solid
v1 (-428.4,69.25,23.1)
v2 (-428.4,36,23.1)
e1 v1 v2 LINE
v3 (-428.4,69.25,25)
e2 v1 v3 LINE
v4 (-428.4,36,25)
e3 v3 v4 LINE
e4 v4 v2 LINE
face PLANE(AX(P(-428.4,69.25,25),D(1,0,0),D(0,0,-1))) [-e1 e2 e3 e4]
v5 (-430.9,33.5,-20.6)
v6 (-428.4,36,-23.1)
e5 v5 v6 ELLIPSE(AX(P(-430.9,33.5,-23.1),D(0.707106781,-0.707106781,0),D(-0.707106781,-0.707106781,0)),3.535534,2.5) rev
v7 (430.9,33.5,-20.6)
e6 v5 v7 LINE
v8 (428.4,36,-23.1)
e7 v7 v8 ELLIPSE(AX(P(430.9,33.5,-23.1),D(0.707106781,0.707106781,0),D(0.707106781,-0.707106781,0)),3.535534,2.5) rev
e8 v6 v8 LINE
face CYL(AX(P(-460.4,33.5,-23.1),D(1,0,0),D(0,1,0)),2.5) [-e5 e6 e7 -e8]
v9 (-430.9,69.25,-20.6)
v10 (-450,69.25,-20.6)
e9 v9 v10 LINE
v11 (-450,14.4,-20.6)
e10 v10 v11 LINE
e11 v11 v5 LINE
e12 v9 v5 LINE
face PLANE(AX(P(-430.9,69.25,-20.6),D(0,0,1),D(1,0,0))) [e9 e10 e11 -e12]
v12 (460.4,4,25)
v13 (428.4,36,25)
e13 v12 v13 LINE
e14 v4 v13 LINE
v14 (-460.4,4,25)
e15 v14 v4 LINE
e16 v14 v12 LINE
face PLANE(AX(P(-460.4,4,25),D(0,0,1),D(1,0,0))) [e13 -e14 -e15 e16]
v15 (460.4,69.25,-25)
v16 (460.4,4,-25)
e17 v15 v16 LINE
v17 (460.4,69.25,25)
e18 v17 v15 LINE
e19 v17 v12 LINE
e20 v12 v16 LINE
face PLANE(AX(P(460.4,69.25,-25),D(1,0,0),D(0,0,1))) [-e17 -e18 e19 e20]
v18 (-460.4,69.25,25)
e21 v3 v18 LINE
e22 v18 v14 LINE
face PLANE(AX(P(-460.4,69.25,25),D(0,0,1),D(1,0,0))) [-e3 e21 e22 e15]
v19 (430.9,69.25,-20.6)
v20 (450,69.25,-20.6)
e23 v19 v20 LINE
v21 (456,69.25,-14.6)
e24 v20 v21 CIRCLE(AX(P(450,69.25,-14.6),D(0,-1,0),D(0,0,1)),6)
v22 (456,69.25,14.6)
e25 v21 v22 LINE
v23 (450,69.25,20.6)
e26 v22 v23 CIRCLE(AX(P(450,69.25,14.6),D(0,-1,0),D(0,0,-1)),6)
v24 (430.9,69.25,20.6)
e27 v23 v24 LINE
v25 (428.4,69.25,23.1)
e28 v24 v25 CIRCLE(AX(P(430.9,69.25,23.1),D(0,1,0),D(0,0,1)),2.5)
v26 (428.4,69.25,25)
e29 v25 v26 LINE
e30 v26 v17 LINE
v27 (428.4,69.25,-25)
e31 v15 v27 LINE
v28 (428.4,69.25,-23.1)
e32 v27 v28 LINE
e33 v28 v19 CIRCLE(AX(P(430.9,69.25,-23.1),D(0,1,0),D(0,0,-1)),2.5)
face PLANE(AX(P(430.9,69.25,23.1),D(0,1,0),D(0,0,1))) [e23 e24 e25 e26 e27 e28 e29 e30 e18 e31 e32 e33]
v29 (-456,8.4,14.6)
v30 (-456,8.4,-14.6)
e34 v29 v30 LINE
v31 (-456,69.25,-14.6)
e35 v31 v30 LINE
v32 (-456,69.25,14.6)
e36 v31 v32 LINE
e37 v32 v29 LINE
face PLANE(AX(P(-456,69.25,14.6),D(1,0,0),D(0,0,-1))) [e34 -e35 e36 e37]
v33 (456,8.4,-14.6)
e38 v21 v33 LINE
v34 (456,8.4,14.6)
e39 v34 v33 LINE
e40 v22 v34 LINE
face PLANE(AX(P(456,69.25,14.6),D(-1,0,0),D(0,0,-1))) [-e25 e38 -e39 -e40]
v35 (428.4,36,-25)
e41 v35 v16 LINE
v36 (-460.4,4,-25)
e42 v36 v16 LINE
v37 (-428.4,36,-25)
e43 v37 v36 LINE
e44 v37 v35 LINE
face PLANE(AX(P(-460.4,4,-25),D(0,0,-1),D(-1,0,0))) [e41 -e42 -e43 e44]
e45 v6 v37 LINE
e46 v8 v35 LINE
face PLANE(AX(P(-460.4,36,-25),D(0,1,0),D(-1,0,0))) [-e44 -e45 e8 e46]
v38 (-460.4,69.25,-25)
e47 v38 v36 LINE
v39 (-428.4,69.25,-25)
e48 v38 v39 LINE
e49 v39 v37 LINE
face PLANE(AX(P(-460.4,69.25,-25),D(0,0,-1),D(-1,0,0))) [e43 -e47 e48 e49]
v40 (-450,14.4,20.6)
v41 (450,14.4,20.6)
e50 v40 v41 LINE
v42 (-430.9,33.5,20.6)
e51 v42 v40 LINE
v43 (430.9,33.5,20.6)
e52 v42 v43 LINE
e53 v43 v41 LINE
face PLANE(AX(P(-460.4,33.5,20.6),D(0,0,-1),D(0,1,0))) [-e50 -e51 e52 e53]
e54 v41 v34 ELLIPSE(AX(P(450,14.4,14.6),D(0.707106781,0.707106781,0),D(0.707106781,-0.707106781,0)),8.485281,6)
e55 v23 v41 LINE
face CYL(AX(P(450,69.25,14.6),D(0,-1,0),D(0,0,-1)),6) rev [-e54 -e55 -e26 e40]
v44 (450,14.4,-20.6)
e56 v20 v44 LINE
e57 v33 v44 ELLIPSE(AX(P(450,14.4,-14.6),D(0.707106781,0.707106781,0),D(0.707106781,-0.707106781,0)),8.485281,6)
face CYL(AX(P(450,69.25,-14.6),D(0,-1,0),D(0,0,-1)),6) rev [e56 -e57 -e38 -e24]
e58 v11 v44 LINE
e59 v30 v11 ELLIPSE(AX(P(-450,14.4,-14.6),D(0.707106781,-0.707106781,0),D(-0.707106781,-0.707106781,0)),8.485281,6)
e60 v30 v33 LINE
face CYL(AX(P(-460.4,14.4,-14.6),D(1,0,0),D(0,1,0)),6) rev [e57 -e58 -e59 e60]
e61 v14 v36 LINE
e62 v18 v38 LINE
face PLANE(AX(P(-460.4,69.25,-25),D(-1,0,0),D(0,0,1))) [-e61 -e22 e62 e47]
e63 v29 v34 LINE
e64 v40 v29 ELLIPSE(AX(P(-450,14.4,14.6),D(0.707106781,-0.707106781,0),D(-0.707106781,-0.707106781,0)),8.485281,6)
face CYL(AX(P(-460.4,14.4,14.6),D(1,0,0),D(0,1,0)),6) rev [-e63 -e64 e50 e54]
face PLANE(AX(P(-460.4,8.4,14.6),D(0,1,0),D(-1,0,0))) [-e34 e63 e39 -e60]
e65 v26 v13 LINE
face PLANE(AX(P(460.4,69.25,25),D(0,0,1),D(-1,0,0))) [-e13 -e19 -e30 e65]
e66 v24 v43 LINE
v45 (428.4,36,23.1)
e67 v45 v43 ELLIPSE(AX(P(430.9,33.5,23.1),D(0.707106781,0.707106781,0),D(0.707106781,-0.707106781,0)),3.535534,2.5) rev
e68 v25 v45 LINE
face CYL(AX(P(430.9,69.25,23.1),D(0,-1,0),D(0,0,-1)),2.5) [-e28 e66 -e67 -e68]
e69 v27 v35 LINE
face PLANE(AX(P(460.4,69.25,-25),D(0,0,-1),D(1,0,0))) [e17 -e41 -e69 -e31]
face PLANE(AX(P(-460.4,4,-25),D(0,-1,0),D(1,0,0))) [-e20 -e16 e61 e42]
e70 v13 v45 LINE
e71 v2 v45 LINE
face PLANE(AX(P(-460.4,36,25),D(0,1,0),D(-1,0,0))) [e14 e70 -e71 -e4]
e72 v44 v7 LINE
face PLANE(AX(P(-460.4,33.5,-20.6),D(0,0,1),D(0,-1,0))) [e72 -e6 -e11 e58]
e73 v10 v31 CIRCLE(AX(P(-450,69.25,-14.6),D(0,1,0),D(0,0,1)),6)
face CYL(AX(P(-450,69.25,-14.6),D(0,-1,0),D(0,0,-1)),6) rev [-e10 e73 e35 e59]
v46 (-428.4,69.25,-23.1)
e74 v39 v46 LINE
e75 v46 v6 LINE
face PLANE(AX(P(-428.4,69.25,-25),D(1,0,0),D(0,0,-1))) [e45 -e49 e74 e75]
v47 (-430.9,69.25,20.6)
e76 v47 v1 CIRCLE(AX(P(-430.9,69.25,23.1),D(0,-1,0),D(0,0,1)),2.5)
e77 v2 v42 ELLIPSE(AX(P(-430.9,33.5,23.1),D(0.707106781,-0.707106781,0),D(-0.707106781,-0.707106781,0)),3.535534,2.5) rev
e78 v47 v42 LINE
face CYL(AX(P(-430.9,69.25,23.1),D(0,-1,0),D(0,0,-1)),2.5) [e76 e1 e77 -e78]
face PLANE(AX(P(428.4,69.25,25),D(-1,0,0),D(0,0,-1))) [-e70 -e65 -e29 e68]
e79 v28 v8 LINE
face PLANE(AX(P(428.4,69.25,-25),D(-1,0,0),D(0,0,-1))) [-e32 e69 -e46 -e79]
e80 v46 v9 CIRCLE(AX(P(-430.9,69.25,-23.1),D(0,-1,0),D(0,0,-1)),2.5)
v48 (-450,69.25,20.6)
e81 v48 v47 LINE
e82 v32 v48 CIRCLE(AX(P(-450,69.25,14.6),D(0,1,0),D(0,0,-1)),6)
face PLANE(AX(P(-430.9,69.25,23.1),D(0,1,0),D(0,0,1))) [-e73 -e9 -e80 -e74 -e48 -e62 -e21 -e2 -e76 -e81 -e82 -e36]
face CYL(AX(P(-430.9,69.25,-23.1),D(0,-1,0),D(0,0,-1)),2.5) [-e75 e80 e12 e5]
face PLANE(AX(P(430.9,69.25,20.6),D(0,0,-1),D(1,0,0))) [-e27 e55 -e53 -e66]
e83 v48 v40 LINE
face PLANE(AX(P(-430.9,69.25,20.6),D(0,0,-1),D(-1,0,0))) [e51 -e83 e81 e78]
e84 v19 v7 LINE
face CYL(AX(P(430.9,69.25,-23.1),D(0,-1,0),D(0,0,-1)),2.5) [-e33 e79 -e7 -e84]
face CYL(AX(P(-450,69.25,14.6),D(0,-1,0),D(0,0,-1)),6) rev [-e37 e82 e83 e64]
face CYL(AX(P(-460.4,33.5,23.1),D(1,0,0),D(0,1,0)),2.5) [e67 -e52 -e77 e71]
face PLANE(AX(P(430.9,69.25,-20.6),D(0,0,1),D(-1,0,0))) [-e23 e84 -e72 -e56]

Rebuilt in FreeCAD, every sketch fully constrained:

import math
import FreeCAD as App
import Part
import Sketcher

V = App.Vector

doc = App.newDocument("Part")
body = doc.addObject("PartDesign::Body", "Body")

sketch1 = body.newObject("Sketcher::SketchObject", "Sketch")
sketch1.AttachmentSupport = (doc.getObject("XZ_Plane"), [""])
sketch1.MapMode = "FlatFace"
sketch1.AttachmentOffset = App.Placement(V(0, 0, -69.25), App.Rotation())
sketch1.addGeometry(Part.LineSegment(V(-460.4, 25, 0), V(-460.4, -25, 0)), False)
sketch1.addGeometry(Part.LineSegment(V(-460.4, -25, 0), V(-428.4, -25, 0)), False)
sketch1.addGeometry(Part.LineSegment(V(-428.4, -25, 0), V(-428.4, -23.1, 0)), False)
sketch1.addGeometry(Part.ArcOfCircle(Part.Circle(V(-430.9, -23.1, 0), V(0, 0, 1), 2.5), math.radians(0), math.radians(90)), False)
sketch1.addGeometry(Part.LineSegment(V(-430.9, -20.6, 0), V(-450, -20.6, 0)), False)
sketch1.addGeometry(Part.ArcOfCircle(Part.Circle(V(-450, -14.6, 0), V(0, 0, 1), 6), math.radians(180), math.radians(270)), False)
sketch1.addGeometry(Part.LineSegment(V(-456, -14.6, 0), V(-456, 14.6, 0)), False)
sketch1.addGeometry(Part.ArcOfCircle(Part.Circle(V(-450, 14.6, 0), V(0, 0, 1), 6), math.radians(90), math.radians(180)), False)
sketch1.addGeometry(Part.LineSegment(V(-450, 20.6, 0), V(-430.9, 20.6, 0)), False)
sketch1.addGeometry(Part.ArcOfCircle(Part.Circle(V(-430.9, 23.1, 0), V(0, 0, 1), 2.5), math.radians(-90), math.radians(0)), False)
sketch1.addGeometry(Part.LineSegment(V(-428.4, 23.1, 0), V(-428.4, 25, 0)), False)
sketch1.addGeometry(Part.LineSegment(V(-428.4, 25, 0), V(-460.4, 25, 0)), False)
sketch1.addConstraint(Sketcher.Constraint("Coincident", 0, 2, 1, 1))
sketch1.addConstraint(Sketcher.Constraint("Coincident", 1, 2, 2, 1))
sketch1.addConstraint(Sketcher.Constraint("Tangent", 2, 2, 3, 1))
sketch1.addConstraint(Sketcher.Constraint("Tangent", 3, 2, 4, 1))
sketch1.addConstraint(Sketcher.Constraint("Tangent", 4, 2, 5, 2))
sketch1.addConstraint(Sketcher.Constraint("Tangent", 5, 1, 6, 1))
sketch1.addConstraint(Sketcher.Constraint("Tangent", 6, 2, 7, 2))
sketch1.addConstraint(Sketcher.Constraint("Tangent", 7, 1, 8, 1))
sketch1.addConstraint(Sketcher.Constraint("Tangent", 8, 2, 9, 1))
sketch1.addConstraint(Sketcher.Constraint("Tangent", 9, 2, 10, 1))
sketch1.addConstraint(Sketcher.Constraint("Coincident", 10, 2, 11, 1))
sketch1.addConstraint(Sketcher.Constraint("Coincident", 11, 2, 0, 1))
sketch1.addConstraint(Sketcher.Constraint("Vertical", 0))
sketch1.addConstraint(Sketcher.Constraint("Horizontal", 1))
sketch1.addConstraint(Sketcher.Constraint("Vertical", 2))
sketch1.addConstraint(Sketcher.Constraint("Horizontal", 4))
sketch1.addConstraint(Sketcher.Constraint("Vertical", 6))
sketch1.addConstraint(Sketcher.Constraint("Horizontal", 8))
sketch1.addConstraint(Sketcher.Constraint("Vertical", 10))
sketch1.addConstraint(Sketcher.Constraint("Horizontal", 11))
sketch1.addConstraint(Sketcher.Constraint("Equal", 5, 7))
sketch1.addConstraint(Sketcher.Constraint("Equal", 3, 9))
sketch1.addConstraint(Sketcher.Constraint("Symmetric", 3, 3, 9, 3, -1))
sketch1.addConstraint(Sketcher.Constraint("Equal", 2, 10))
sketch1.addConstraint(Sketcher.Constraint("Radius", 5, 6.0))
sketch1.addConstraint(Sketcher.Constraint("Radius", 3, 2.5))
sketch1.addConstraint(Sketcher.Constraint("DistanceX", 1, 1, 1, 2, 32.0))
sketch1.addConstraint(Sketcher.Constraint("DistanceY", 0, 2, 0, 1, 50.0))
sketch1.addConstraint(Sketcher.Constraint("DistanceX", 4, 2, 4, 1, 19.1))
sketch1.addConstraint(Sketcher.Constraint("DistanceY", 2, 1, 2, 2, 1.9))
sketch1.addConstraint(Sketcher.Constraint("DistanceX", 5, 3, -1, 1, 450.0))

sketch2 = body.newObject("Sketcher::SketchObject", "Sketch001")
sketch2.AttachmentSupport = (doc.getObject("XY_Plane"), [""])
sketch2.MapMode = "FlatFace"
sketch2.addGeometry(Part.LineSegment(V(-460, 69, 0), V(-460, 4, 0)), False)
sketch2.addGeometry(Part.LineSegment(V(-460, 4, 0), V(0, 4, 0)), False)
sketch2.addConstraint(Sketcher.Constraint("Coincident", 0, 2, 1, 1))
sketch2.addConstraint(Sketcher.Constraint("Vertical", 0))
sketch2.addConstraint(Sketcher.Constraint("Horizontal", 1))
sketch2.addConstraint(Sketcher.Constraint("PointOnObject", 1, 2, -2))
sketch2.addConstraint(Sketcher.Constraint("DistanceX", 1, 1, 1, 2, 460.4))
sketch2.addConstraint(Sketcher.Constraint("DistanceY", -1, 1, 0, 2, 4.0))
sketch2.addConstraint(Sketcher.Constraint("DistanceY", 0, 2, 0, 1, 65.25))
doc.recompute()

additivepipe = body.newObject("PartDesign::AdditivePipe", "AdditivePipe")
additivepipe.Profile = sketch1
additivepipe.Spine = (sketch2, ["Edge1", "Edge2"])
additivepipe.Transition = "Right corner"
body2 = doc.addObject("PartDesign::Body", "Body001")
doc.recompute()

body2.BaseFeature = body
doc.recompute()

mirroring = doc.addObject("Part::Mirroring", "Mirroring")
mirroring.Source = body
mirroring.Base = V(0, 33.5, 23.1)
mirroring.Normal = V(-1, 0, 0)
body3 = doc.addObject("PartDesign::Body", "Body002")
body3.BaseFeature = mirroring
boolean = body2.newObject("PartDesign::Boolean", "Boolean")
boolean.Type = "Fuse"
boolean.addObjects([body3])
doc.recompute()
mirroring.Visibility = False

doc.recompute()
